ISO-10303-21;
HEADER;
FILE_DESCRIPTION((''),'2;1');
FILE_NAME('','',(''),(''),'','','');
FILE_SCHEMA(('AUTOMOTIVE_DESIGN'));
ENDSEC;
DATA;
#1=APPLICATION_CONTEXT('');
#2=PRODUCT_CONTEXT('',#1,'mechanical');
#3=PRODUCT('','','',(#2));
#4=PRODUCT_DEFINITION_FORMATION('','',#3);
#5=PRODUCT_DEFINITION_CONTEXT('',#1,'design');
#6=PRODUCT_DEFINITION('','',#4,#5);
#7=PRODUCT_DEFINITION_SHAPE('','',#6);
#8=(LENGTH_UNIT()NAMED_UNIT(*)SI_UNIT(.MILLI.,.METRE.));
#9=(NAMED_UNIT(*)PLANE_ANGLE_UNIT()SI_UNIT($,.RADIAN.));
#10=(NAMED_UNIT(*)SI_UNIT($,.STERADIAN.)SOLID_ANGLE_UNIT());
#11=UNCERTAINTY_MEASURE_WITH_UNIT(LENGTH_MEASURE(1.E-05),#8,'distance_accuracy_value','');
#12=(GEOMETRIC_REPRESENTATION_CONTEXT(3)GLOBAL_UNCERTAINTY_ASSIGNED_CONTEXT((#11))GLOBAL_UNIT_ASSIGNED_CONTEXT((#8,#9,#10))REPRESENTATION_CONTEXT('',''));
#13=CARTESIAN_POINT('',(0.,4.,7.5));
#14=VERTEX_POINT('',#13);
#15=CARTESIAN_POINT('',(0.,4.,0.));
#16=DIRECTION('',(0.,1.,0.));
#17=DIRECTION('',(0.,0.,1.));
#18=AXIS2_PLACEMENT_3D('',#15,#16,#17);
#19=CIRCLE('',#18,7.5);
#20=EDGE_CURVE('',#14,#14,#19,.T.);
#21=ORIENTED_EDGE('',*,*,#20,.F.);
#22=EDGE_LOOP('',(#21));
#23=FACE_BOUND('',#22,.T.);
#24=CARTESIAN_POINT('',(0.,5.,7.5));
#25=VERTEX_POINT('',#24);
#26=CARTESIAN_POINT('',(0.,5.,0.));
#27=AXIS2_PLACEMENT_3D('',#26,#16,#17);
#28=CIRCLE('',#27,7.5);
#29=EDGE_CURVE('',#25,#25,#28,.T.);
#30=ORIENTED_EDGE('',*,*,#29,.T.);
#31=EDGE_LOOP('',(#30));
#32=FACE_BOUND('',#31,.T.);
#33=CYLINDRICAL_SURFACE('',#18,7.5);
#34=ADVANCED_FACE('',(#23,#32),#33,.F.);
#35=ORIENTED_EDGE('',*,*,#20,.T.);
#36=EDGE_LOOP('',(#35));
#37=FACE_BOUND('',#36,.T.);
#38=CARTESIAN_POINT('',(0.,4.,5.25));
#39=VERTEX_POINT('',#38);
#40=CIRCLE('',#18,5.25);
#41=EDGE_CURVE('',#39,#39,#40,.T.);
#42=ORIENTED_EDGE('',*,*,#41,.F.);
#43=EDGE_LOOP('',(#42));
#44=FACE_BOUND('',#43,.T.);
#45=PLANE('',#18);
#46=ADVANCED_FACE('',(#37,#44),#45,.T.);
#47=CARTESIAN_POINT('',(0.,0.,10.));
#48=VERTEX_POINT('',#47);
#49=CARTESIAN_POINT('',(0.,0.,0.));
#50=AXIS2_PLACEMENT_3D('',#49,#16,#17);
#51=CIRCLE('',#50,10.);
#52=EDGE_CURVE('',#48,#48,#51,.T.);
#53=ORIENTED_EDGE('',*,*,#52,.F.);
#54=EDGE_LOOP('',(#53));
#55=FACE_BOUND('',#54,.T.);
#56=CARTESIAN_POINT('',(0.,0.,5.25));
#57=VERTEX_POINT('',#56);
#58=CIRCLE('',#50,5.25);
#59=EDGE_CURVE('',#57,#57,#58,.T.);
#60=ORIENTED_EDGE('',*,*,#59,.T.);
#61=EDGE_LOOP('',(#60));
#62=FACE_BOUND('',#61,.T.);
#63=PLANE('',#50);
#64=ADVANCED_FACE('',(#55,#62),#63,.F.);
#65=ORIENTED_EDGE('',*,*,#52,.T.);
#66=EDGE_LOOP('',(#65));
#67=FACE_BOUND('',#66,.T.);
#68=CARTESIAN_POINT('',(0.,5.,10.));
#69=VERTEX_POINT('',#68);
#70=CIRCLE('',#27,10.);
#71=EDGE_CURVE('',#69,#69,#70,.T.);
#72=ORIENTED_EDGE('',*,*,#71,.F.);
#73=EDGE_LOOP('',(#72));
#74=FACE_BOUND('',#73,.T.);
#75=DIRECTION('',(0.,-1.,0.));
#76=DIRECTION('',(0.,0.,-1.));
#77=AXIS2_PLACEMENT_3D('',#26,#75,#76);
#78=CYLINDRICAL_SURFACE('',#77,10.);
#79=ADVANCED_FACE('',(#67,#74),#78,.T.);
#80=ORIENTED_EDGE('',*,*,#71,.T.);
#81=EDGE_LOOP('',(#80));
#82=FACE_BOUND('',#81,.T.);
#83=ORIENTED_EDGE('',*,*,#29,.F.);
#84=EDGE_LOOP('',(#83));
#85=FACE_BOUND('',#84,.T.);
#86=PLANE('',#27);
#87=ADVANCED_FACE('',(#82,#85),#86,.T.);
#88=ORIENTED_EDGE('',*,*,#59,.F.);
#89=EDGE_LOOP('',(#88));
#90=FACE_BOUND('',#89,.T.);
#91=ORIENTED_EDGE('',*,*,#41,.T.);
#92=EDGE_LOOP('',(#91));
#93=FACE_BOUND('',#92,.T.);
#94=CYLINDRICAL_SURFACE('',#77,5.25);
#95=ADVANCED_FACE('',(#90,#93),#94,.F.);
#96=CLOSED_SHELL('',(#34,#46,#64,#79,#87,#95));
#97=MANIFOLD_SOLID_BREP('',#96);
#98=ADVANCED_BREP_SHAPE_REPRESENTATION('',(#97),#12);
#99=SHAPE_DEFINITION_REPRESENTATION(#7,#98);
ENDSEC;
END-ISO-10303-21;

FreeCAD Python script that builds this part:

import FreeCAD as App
import Part
import Sketcher

V = App.Vector
Q = App.Units.Quantity

doc = App.newDocument("Part")
params = doc.addObject("Spreadsheet::Sheet", "Params")
for row, (alias, value) in enumerate([
    ("sketch1_diameter", "20 mm"),
    ("sketch1_diameter2", "10.5 mm"),
    ("pad1_length", "5 mm"),
    ("sketch2_diameter", "15 mm"),
    ("pocket1_length", "1 mm"),
], start=1):
    params.set(f"A{row}", alias)
    params.set(f"B{row}", "=" + value)
    params.setAlias(f"B{row}", alias)

body = doc.addObject("PartDesign::Body", "Body")

sketch1 = body.newObject("Sketcher::SketchObject", "Sketch")
sketch1.AttachmentSupport = (doc.getObject("XZ_Plane"), [""])
sketch1.MapMode = "FlatFace"
sketch1.addGeometry([
    Part.Circle(V(0, 0, 0), V(0, 0, 1), 10),
    Part.Circle(V(0, 0, 0), V(0, 0, 1), 5),
], False)
sketch1.addConstraint([
    Sketcher.Constraint("Coincident", 0, 3, -1, 1),
    Sketcher.Constraint("Coincident", 1, 3, -1, 1),
    Sketcher.Constraint("Diameter", 0, Q("20 mm")),
    Sketcher.Constraint("Diameter", 1, Q("10.5 mm")),
])
sketch1.setExpression("Constraints[2]", "Params.sketch1_diameter")
sketch1.setExpression("Constraints[3]", "Params.sketch1_diameter2")
pad1 = body.newObject("PartDesign::Pad", "Pad")
pad1.Profile = sketch1
pad1.setExpression("Length", "Params.pad1_length")
pad1.Reversed = True

sketch2 = body.newObject("Sketcher::SketchObject", "Sketch001")
sketch2.AttachmentSupport = (doc.getObject("XZ_Plane"), [""])
sketch2.MapMode = "FlatFace"
sketch2.AttachmentOffset = App.Placement(V(0, 0, -5), App.Rotation())
sketch2.addGeometry(Part.Circle(V(0, 0, 0), V(0, 0, 1), 8), False)
sketch2.addConstraint([
    Sketcher.Constraint("Coincident", 0, 3, -1, 1),
    Sketcher.Constraint("Diameter", 0, Q("15 mm")),
])
sketch2.setExpression("Constraints[1]", "Params.sketch2_diameter")
pocket1 = body.newObject("PartDesign::Pocket", "Pocket")
pocket1.Profile = sketch2
pocket1.setExpression("Length", "Params.pocket1_length")
pocket1.Reversed = True

doc.recompute()
